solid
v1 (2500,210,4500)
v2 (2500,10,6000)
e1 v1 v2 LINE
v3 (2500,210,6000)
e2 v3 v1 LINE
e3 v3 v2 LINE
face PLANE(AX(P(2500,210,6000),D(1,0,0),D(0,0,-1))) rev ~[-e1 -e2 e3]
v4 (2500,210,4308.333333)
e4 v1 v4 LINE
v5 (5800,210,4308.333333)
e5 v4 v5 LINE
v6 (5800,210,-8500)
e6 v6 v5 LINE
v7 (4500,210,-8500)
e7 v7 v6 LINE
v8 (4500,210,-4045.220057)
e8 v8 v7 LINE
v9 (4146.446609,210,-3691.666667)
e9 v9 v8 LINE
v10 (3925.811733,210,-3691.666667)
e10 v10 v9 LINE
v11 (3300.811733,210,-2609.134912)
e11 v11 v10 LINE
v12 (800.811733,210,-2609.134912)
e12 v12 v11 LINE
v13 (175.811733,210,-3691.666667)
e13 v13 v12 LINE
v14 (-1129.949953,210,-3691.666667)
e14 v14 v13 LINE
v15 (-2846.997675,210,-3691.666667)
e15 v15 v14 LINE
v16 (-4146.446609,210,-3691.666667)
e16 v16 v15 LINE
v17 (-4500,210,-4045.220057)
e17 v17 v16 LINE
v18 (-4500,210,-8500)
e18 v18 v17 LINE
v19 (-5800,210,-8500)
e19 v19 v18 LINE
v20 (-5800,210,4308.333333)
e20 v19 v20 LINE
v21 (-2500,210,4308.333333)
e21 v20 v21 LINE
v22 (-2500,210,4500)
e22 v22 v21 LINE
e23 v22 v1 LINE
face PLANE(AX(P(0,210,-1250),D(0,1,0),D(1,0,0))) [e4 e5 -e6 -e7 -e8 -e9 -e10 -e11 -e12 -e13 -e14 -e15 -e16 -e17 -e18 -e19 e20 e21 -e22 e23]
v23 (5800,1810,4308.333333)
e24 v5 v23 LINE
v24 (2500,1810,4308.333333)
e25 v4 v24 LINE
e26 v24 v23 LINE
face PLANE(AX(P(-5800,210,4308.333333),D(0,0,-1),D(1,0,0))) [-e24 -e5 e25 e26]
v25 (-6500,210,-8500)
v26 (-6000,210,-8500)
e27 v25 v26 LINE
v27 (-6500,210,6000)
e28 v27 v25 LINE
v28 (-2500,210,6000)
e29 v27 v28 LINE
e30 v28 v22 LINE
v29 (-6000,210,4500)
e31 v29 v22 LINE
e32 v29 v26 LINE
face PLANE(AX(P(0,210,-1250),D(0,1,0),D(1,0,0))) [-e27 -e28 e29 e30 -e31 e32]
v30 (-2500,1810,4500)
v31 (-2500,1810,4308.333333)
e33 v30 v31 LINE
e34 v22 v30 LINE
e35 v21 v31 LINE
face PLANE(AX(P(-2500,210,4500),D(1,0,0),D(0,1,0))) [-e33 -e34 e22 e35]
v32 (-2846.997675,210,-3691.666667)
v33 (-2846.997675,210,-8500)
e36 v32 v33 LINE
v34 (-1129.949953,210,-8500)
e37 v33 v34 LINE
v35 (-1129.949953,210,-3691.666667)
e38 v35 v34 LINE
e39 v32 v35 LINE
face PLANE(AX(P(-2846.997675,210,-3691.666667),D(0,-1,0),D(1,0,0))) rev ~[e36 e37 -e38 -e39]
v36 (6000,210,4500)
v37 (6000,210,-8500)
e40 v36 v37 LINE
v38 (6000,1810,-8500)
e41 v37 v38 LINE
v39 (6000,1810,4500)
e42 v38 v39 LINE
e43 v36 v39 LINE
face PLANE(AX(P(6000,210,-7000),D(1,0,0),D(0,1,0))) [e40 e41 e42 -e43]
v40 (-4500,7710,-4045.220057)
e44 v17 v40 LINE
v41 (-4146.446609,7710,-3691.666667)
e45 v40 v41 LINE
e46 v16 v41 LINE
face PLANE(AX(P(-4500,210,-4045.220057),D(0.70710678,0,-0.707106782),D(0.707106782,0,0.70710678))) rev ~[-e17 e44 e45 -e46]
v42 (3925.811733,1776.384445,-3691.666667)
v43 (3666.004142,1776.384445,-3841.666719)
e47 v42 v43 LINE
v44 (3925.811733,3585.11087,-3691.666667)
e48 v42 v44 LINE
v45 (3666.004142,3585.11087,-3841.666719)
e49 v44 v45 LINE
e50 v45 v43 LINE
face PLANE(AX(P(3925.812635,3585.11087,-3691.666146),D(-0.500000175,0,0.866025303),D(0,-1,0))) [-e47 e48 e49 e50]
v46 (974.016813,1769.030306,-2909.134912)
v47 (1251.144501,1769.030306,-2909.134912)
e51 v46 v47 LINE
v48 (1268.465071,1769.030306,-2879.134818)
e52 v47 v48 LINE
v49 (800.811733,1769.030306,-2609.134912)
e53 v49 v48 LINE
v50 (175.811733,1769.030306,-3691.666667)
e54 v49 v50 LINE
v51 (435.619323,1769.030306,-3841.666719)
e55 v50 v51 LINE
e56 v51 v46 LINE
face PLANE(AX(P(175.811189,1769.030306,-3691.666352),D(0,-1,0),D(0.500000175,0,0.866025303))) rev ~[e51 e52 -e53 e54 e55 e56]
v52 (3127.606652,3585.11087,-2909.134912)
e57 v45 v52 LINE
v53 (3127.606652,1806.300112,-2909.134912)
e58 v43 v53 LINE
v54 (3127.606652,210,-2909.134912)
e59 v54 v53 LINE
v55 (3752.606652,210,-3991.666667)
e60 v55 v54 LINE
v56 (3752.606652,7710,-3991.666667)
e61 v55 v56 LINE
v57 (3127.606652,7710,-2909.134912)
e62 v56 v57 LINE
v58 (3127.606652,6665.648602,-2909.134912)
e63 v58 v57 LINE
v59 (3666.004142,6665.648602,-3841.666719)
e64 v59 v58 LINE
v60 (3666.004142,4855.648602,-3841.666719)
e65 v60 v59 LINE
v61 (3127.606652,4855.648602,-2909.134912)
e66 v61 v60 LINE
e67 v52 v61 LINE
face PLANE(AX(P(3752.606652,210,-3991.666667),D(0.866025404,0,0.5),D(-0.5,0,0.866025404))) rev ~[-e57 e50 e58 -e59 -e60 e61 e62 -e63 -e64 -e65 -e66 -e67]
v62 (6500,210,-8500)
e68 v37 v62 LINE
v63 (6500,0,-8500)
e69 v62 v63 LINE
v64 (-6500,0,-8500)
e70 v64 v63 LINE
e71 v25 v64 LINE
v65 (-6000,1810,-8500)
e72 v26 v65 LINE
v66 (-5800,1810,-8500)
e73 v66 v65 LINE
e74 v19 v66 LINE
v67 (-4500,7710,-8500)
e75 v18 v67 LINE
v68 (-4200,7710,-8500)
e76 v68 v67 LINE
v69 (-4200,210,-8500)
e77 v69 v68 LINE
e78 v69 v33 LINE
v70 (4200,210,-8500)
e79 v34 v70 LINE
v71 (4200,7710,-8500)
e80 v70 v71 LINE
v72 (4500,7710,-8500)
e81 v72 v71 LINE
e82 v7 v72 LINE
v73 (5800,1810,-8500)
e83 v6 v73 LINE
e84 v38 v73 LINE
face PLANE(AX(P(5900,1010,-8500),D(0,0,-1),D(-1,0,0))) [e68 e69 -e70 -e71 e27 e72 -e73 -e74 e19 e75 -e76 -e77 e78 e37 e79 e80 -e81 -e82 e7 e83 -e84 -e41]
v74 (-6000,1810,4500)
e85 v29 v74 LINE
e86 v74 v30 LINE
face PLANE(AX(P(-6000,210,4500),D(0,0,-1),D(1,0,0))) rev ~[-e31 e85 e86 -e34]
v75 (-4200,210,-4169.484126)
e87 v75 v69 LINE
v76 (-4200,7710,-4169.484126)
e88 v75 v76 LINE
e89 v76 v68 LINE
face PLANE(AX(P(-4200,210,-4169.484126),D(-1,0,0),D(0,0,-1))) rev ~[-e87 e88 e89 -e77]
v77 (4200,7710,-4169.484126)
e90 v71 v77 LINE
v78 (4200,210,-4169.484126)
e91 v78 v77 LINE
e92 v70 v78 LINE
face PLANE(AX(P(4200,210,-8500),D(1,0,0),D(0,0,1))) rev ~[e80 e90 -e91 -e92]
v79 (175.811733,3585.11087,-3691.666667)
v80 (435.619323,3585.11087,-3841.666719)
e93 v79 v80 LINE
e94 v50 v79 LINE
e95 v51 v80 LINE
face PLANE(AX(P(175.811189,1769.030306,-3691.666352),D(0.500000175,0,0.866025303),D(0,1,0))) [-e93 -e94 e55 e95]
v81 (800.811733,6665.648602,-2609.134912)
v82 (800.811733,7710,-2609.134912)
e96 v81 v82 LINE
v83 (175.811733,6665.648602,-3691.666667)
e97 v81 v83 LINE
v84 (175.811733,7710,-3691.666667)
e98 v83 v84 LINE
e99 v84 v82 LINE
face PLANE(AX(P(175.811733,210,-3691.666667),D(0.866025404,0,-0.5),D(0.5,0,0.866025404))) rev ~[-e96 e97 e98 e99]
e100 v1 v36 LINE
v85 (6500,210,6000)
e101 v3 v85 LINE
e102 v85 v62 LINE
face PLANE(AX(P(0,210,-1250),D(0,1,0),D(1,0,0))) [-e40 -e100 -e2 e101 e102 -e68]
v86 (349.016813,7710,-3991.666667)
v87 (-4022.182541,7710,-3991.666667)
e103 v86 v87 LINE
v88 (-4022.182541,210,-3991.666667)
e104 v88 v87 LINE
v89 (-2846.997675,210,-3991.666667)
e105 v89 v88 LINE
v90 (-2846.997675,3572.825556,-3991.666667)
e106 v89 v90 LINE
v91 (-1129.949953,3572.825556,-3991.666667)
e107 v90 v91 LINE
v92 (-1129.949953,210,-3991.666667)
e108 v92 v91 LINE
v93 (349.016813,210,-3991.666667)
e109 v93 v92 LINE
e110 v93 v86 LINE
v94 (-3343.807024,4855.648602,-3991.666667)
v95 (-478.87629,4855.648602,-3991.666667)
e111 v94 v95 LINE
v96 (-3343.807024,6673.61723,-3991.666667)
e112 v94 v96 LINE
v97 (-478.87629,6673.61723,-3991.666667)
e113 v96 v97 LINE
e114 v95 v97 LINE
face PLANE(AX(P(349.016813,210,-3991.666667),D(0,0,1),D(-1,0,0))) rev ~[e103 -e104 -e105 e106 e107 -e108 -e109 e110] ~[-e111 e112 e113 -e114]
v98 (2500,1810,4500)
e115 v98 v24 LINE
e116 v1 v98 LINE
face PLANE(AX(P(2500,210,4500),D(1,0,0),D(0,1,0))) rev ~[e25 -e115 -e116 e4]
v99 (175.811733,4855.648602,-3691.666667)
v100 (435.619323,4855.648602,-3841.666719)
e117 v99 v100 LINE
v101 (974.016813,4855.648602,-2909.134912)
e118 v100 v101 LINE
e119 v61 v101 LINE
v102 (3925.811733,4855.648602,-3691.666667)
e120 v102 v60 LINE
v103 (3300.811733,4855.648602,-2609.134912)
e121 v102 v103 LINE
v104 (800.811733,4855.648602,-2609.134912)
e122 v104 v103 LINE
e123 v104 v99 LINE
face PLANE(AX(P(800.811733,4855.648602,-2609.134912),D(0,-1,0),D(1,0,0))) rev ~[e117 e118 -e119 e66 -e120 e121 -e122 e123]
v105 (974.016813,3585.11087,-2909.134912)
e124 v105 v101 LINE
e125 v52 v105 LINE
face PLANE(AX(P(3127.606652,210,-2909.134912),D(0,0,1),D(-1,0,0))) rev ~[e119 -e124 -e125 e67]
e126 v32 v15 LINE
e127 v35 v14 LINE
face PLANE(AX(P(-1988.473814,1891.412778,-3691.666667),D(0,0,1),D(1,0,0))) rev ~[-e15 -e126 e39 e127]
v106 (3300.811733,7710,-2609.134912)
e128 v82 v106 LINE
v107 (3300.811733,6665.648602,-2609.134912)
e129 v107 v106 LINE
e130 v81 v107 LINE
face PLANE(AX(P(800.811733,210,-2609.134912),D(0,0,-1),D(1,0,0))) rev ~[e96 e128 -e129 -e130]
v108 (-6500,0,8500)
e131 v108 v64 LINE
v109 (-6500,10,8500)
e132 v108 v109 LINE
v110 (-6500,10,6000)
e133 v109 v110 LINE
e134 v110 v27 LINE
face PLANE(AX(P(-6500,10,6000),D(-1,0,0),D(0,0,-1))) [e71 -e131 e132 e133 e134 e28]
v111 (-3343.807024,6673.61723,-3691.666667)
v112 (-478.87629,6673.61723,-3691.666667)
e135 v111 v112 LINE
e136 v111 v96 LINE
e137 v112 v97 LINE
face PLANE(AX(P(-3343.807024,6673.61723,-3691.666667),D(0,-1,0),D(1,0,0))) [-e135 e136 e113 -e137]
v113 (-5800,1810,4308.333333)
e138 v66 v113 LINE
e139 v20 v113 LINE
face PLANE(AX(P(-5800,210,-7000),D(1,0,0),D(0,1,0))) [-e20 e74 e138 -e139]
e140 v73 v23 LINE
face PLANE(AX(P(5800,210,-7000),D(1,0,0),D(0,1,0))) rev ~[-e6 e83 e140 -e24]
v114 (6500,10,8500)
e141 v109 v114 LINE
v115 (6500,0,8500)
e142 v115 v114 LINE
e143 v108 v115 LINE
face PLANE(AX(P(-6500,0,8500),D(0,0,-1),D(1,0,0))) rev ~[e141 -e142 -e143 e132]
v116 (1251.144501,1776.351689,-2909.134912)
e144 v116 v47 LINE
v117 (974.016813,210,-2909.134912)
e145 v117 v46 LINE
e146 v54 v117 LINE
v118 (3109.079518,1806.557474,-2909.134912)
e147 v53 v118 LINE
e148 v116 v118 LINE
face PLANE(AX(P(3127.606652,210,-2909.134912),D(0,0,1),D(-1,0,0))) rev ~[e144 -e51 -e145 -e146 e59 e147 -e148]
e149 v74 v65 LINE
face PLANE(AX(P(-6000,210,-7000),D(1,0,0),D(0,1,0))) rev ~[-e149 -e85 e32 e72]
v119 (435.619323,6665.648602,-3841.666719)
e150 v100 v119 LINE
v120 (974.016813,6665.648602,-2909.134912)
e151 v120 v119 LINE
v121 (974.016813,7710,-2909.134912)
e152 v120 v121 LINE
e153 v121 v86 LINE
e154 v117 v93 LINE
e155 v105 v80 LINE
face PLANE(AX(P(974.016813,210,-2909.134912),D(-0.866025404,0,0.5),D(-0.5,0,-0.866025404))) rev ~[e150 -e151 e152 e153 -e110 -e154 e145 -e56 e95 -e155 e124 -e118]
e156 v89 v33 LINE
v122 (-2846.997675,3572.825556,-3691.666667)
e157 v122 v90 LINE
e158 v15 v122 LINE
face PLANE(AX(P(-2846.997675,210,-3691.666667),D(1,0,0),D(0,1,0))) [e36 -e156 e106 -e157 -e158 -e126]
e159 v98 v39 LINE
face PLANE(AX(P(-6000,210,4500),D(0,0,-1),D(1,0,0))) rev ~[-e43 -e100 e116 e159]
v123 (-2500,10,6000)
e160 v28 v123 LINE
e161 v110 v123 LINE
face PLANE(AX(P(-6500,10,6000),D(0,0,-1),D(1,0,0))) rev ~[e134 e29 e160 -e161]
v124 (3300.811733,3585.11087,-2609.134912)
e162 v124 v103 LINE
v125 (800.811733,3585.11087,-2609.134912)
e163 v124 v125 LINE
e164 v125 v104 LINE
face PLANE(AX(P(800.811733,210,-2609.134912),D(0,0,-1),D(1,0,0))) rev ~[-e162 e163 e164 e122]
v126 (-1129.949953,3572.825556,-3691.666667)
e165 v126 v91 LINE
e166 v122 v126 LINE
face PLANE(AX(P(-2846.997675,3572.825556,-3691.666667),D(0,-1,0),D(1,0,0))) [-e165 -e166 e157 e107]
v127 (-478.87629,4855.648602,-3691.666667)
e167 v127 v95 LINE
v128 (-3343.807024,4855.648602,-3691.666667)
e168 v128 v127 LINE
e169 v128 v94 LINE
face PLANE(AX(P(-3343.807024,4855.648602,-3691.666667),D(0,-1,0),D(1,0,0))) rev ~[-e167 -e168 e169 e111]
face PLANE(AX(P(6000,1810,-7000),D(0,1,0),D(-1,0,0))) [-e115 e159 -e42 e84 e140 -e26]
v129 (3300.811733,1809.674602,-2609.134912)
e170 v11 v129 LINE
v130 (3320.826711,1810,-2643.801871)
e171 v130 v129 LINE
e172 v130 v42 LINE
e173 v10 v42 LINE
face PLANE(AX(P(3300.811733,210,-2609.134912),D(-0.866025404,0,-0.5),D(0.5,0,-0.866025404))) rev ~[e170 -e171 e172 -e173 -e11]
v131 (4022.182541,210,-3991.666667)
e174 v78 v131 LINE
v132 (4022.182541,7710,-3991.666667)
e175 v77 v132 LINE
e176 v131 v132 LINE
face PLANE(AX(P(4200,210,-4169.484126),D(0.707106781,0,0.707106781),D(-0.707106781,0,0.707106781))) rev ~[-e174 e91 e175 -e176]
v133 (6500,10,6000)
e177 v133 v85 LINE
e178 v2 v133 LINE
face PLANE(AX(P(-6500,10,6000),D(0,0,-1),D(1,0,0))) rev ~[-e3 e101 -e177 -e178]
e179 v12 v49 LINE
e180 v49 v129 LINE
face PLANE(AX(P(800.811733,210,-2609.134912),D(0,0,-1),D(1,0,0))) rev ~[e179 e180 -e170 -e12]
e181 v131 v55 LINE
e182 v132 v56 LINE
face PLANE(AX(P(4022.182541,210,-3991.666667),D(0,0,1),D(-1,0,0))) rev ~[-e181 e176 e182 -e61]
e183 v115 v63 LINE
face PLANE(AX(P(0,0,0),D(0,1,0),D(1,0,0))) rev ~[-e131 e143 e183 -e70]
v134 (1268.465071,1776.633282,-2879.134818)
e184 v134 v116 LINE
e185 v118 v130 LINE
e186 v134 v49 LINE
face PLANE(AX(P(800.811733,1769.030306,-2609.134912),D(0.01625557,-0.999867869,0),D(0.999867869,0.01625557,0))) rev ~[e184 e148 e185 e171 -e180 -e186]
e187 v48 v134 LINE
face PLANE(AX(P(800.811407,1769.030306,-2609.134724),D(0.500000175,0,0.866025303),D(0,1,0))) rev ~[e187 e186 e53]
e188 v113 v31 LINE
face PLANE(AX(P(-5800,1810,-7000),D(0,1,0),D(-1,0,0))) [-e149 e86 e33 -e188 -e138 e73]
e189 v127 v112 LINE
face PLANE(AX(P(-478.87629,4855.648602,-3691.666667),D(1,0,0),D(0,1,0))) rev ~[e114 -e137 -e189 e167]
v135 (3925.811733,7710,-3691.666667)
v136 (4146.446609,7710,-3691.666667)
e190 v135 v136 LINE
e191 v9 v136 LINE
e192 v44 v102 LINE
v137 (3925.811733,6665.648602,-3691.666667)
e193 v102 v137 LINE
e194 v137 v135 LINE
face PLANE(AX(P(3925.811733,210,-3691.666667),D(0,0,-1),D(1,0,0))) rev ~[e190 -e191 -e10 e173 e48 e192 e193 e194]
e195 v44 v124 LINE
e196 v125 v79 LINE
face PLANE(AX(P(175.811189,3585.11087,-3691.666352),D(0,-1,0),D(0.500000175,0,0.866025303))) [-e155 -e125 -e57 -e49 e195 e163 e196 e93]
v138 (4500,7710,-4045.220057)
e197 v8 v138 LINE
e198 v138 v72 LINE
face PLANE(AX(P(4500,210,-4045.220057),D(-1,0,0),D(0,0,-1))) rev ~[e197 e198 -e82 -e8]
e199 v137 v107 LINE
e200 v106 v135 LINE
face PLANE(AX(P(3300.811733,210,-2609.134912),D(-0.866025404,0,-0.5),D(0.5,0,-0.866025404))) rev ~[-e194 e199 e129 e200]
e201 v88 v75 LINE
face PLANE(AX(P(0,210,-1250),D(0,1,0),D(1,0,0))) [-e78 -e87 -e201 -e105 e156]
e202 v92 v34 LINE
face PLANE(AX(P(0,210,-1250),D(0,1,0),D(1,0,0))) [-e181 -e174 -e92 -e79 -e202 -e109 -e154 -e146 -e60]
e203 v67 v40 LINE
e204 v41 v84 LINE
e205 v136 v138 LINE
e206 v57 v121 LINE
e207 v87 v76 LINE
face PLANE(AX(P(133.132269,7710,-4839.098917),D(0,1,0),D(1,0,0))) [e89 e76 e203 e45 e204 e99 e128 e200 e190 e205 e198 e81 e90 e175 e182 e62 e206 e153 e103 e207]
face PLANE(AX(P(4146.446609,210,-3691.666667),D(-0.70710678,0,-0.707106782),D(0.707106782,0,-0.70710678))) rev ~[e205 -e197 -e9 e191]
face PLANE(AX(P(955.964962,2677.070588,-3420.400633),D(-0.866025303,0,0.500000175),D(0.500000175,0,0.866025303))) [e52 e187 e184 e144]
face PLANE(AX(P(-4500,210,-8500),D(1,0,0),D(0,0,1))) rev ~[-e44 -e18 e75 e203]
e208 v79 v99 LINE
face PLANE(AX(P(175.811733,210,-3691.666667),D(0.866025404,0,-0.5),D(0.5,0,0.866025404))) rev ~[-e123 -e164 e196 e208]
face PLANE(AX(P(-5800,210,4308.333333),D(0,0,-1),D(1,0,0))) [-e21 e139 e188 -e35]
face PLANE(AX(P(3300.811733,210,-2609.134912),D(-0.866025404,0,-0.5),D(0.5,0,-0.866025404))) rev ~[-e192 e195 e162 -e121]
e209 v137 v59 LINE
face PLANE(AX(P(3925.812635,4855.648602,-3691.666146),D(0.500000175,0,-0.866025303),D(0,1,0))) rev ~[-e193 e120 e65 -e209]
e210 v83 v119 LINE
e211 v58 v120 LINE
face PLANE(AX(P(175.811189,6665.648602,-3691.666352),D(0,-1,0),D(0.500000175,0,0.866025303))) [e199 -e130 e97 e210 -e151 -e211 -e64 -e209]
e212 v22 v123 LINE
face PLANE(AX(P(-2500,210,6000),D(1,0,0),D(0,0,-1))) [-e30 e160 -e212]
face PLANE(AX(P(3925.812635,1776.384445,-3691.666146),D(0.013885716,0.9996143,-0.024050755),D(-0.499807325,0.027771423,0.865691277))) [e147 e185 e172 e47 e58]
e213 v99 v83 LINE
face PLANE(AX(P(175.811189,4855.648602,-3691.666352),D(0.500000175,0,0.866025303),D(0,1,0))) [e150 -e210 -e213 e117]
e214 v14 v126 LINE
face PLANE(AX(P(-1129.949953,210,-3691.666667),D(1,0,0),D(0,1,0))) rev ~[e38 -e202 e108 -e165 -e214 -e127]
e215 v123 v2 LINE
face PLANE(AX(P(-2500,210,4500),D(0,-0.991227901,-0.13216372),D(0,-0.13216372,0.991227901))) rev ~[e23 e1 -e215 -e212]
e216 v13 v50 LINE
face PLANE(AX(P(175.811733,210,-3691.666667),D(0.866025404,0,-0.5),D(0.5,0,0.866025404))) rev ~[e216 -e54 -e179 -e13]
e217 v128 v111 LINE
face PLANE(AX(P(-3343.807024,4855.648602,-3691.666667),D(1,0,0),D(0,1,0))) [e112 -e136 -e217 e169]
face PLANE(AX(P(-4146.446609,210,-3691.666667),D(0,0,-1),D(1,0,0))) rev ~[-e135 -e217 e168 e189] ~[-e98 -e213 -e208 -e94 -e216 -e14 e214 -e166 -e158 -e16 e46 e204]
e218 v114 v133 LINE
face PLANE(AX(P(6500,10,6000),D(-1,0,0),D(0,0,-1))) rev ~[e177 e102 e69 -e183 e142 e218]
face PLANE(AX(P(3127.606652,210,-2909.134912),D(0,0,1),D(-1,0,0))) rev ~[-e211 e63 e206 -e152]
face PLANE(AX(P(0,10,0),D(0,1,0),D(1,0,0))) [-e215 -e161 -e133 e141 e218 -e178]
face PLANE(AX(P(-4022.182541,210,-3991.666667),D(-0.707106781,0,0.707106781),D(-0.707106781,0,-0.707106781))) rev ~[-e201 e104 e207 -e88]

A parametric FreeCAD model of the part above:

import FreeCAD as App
import Part
import Sketcher
from FreeCAD import Vector
Q = App.Units.Quantity

doc = App.newDocument("Part")
body = doc.addObject("PartDesign::Body", "Body")

# Sketch on XZ plane
sketch1 = body.newObject("Sketcher::SketchObject", "Sketch")
sketch1.AttachmentSupport = (doc.getObject("XZ_Plane"), [""])
sketch1.MapMode = "FlatFace"
sketch1.addGeometry([
    Part.LineSegment(Vector(-6500, -8500, 0), Vector(-6500, 8500, 0)),
    Part.LineSegment(Vector(-6500, 8500, 0), Vector(6500, 8500, 0)),
    Part.LineSegment(Vector(6500, 8500, 0), Vector(6500, -8500, 0)),
    Part.LineSegment(Vector(6500, -8500, 0), Vector(-6500, -8500, 0)),
], False)
sketch1.addConstraint([
    Sketcher.Constraint("Coincident", 0, 2, 1, 1),
    Sketcher.Constraint("Coincident", 1, 2, 2, 1),
    Sketcher.Constraint("Coincident", 2, 2, 3, 1),
    Sketcher.Constraint("Coincident", 3, 2, 0, 1),
    Sketcher.Constraint("Vertical", 0),
    Sketcher.Constraint("Horizontal", 1),
    Sketcher.Constraint("Vertical", 2),
    Sketcher.Constraint("Horizontal", 3),
    Sketcher.Constraint("Symmetric", 0, 2, 2, 2, -1, 1),
    Sketcher.Constraint("DistanceX", 1, 1, 1, 2, Q("13000 mm")),
    Sketcher.Constraint("DistanceY", 0, 1, 0, 2, Q("17000 mm")),
])
pad1 = body.newObject("PartDesign::Pad", "Pad")
pad1.Profile = sketch1
pad1.Length = 10
pad1.Reversed = True

# Sketch on XZ plane
sketch2 = body.newObject("Sketcher::SketchObject", "Sketch001")
sketch2.AttachmentSupport = (doc.getObject("XZ_Plane"), [""])
sketch2.MapMode = "FlatFace"
sketch2.AttachmentOffset = App.Placement(Vector(0, 0, -10), App.Rotation())
sketch2.addGeometry([
    Part.LineSegment(Vector(-6500, -8500, 0), Vector(-6500, 6000, 0)),
    Part.LineSegment(Vector(-6500, 6000, 0), Vector(6500, 6000, 0)),
    Part.LineSegment(Vector(6500, 6000, 0), Vector(6500, -8500, 0)),
    Part.LineSegment(Vector(6500, -8500, 0), Vector(-6500, -8500, 0)),
], False)
sketch2.addConstraint([
    Sketcher.Constraint("Coincident", 0, 2, 1, 1),
    Sketcher.Constraint("Coincident", 1, 2, 2, 1),
    Sketcher.Constraint("Coincident", 2, 2, 3, 1),
    Sketcher.Constraint("Coincident", 3, 2, 0, 1),
    Sketcher.Constraint("Vertical", 0),
    Sketcher.Constraint("Horizontal", 1),
    Sketcher.Constraint("Vertical", 2),
    Sketcher.Constraint("Horizontal", 3),
    Sketcher.Constraint("DistanceX", 1, 1, 1, 2, Q("13000 mm")),
    Sketcher.Constraint("DistanceY", 0, 1, 0, 2, Q("14500 mm")),
    Sketcher.Constraint("DistanceX", 0, 2, -1, 1, Q("6500 mm")),
    Sketcher.Constraint("DistanceY", -1, 1, 0, 2, Q("6000 mm")),
])
pad2 = body.newObject("PartDesign::Pad", "Pad001")
pad2.Profile = sketch2
pad2.Length = 200
pad2.Reversed = True

# Sketch on XZ plane
sketch3 = body.newObject("Sketcher::SketchObject", "Sketch002")
sketch3.AttachmentSupport = (doc.getObject("XZ_Plane"), [""])
sketch3.MapMode = "FlatFace"
sketch3.AttachmentOffset = App.Placement(Vector(0, 0, -210), App.Rotation())
sketch3.addGeometry([
    Part.LineSegment(Vector(-6000, -7000, 0), Vector(-6000, 4500, 0)),  # 0
    Part.LineSegment(Vector(-6000, 4500, 0), Vector(6000, 4500, 0)),  # 1
    Part.LineSegment(Vector(6000, 4500, 0), Vector(6000, -7000, 0)),  # 2
    Part.LineSegment(Vector(6000, -7000, 0), Vector(-6000, -7000, 0)),  # 3
    Part.LineSegment(Vector(5800, 4308.333333, 0), Vector(-5800, 4308.333333, 0)),  # 4
    Part.LineSegment(Vector(-5800, 4308.333333, 0), Vector(-5800, -6808.333333, 0)),  # 5
    Part.LineSegment(Vector(-5800, -6808.333333, 0), Vector(5800, -6808.333333, 0)),  # 6
    Part.LineSegment(Vector(5800, -6808.333333, 0), Vector(5800, 4308.333333, 0)),  # 7
], False)
sketch3.addConstraint([
    Sketcher.Constraint("Coincident", 0, 2, 1, 1),
    Sketcher.Constraint("Coincident", 1, 2, 2, 1),
    Sketcher.Constraint("Coincident", 2, 2, 3, 1),
    Sketcher.Constraint("Coincident", 3, 2, 0, 1),
    Sketcher.Constraint("Coincident", 4, 2, 5, 1),
    Sketcher.Constraint("Coincident", 5, 2, 6, 1),
    Sketcher.Constraint("Coincident", 6, 2, 7, 1),
    Sketcher.Constraint("Coincident", 7, 2, 4, 1),
    Sketcher.Constraint("Vertical", 0),
    Sketcher.Constraint("Horizontal", 1),
    Sketcher.Constraint("Vertical", 2),
    Sketcher.Constraint("Horizontal", 3),
    Sketcher.Constraint("Horizontal", 4),
    Sketcher.Constraint("Vertical", 5),
    Sketcher.Constraint("Horizontal", 6),
    Sketcher.Constraint("Vertical", 7),
    Sketcher.Constraint("DistanceX", 1, 1, 1, 2, Q("12000 mm")),
    Sketcher.Constraint("DistanceX", 4, 2, 4, 1, Q("11600 mm")),
    Sketcher.Constraint("DistanceY", 0, 1, 0, 2, Q("11500 mm")),
    Sketcher.Constraint("DistanceX", 0, 2, -1, 1, Q("6000 mm")),
    Sketcher.Constraint("DistanceY", -1, 1, 0, 2, Q("4500 mm")),
    Sketcher.Constraint("DistanceX", 4, 2, -1, 1, Q("5800 mm")),
    Sketcher.Constraint("DistanceY", 5, 2, 5, 1, Q("11116.666666 mm")),
    Sketcher.Constraint("DistanceY", -1, 1, 4, 2, Q("4308.333333 mm")),
])
pad3 = body.newObject("PartDesign::Pad", "Pad002")
pad3.Profile = sketch3
pad3.Length = 1600
pad3.Reversed = True

# Sketch on XY plane
sketch4 = body.newObject("Sketcher::SketchObject", "Sketch003")
sketch4.AttachmentSupport = (doc.getObject("XY_Plane"), [""])
sketch4.MapMode = "FlatFace"
sketch4.AttachmentOffset = App.Placement(Vector(0, 0, 4500), App.Rotation())
sketch4.addGeometry([
    Part.LineSegment(Vector(-2500, 1810, 0), Vector(-2500, 210, 0)),
    Part.LineSegment(Vector(-2500, 210, 0), Vector(2500, 210, 0)),
    Part.LineSegment(Vector(2500, 210, 0), Vector(2500, 1810, 0)),
    Part.LineSegment(Vector(2500, 1810, 0), Vector(-2500, 1810, 0)),
], False)
sketch4.addConstraint([
    Sketcher.Constraint("Coincident", 0, 2, 1, 1),
    Sketcher.Constraint("Coincident", 1, 2, 2, 1),
    Sketcher.Constraint("Coincident", 2, 2, 3, 1),
    Sketcher.Constraint("Coincident", 3, 2, 0, 1),
    Sketcher.Constraint("Vertical", 0),
    Sketcher.Constraint("Horizontal", 1),
    Sketcher.Constraint("Vertical", 2),
    Sketcher.Constraint("Horizontal", 3),
    Sketcher.Constraint("DistanceX", 1, 1, 1, 2, Q("5000 mm")),
    Sketcher.Constraint("DistanceY", 0, 2, 0, 1, Q("1600 mm")),
    Sketcher.Constraint("DistanceX", 0, 2, -1, 1, Q("2500 mm")),
    Sketcher.Constraint("DistanceY", -1, 1, 0, 2, Q("210 mm")),
])
pocket1 = body.newObject("PartDesign::Pocket", "Pocket")
pocket1.Profile = sketch4
pocket1.Length = 191.666667

# Sketch on XY plane
sketch5 = body.newObject("Sketcher::SketchObject", "Sketch004")
sketch5.AttachmentSupport = (doc.getObject("XY_Plane"), [""])
sketch5.MapMode = "FlatFace"
sketch5.AttachmentOffset = App.Placement(Vector(0, 0, -6808.333333), App.Rotation())
sketch5.addGeometry([
    Part.LineSegment(Vector(-5800, 1810, 0), Vector(-5800, 210, 0)),
    Part.LineSegment(Vector(-5800, 210, 0), Vector(5800, 210, 0)),
    Part.LineSegment(Vector(5800, 210, 0), Vector(5800, 1810, 0)),
    Part.LineSegment(Vector(5800, 1810, 0), Vector(-5800, 1810, 0)),
], False)
sketch5.addConstraint([
    Sketcher.Constraint("Coincident", 0, 2, 1, 1),
    Sketcher.Constraint("Coincident", 1, 2, 2, 1),
    Sketcher.Constraint("Coincident", 2, 2, 3, 1),
    Sketcher.Constraint("Coincident", 3, 2, 0, 1),
    Sketcher.Constraint("Vertical", 0),
    Sketcher.Constraint("Horizontal", 1),
    Sketcher.Constraint("Vertical", 2),
    Sketcher.Constraint("Horizontal", 3),
    Sketcher.Constraint("DistanceX", 1, 1, 1, 2, Q("11600 mm")),
    Sketcher.Constraint("DistanceY", 0, 2, 0, 1, Q("1600 mm")),
    Sketcher.Constraint("DistanceX", 0, 2, -1, 1, Q("5800 mm")),
    Sketcher.Constraint("DistanceY", -1, 1, 0, 2, Q("210 mm")),
])
pocket2 = body.newObject("PartDesign::Pocket", "Pocket001")
pocket2.Profile = sketch5
pocket2.Length = 191.666667

# Sketch on XZ plane
sketch6 = body.newObject("Sketcher::SketchObject", "Sketch005")
sketch6.AttachmentSupport = (doc.getObject("XZ_Plane"), [""])
sketch6.MapMode = "FlatFace"
sketch6.AttachmentOffset = App.Placement(Vector(0, 0, -210), App.Rotation())
sketch6.addGeometry([
    Part.LineSegment(Vector(-2500, 4500, 0), Vector(-2500, 6000, 0)),
    Part.LineSegment(Vector(-2500, 6000, 0), Vector(2500, 6000, 0)),
    Part.LineSegment(Vector(2500, 6000, 0), Vector(2500, 4500, 0)),
    Part.LineSegment(Vector(2500, 4500, 0), Vector(-2500, 4500, 0)),
], False)
sketch6.addConstraint([
    Sketcher.Constraint("Coincident", 0, 2, 1, 1),
    Sketcher.Constraint("Coincident", 1, 2, 2, 1),
    Sketcher.Constraint("Coincident", 2, 2, 3, 1),
    Sketcher.Constraint("Coincident", 3, 2, 0, 1),
    Sketcher.Constraint("Vertical", 0),
    Sketcher.Constraint("Horizontal", 1),
    Sketcher.Constraint("Vertical", 2),
    Sketcher.Constraint("Horizontal", 3),
    Sketcher.Constraint("DistanceX", 1, 1, 1, 2, Q("5000 mm")),
    Sketcher.Constraint("DistanceY", 0, 1, 0, 2, Q("1500 mm")),
    Sketcher.Constraint("DistanceX", 0, 2, -1, 1, Q("2500 mm")),
    Sketcher.Constraint("DistanceY", -1, 1, 0, 2, Q("6000 mm")),
])
pocket3 = body.newObject("PartDesign::Pocket", "Pocket002")
pocket3.Profile = sketch6
pocket3.Length = 200
pocket3.Reversed = True

# Sketch on YZ plane
sketch7 = body.newObject("Sketcher::SketchObject", "Sketch006")
sketch7.AttachmentSupport = (doc.getObject("YZ_Plane"), [""])
sketch7.MapMode = "FlatFace"
sketch7.AttachmentOffset = App.Placement(Vector(0, 0, -2500), App.Rotation())
sketch7.addGeometry([
    Part.LineSegment(Vector(10, 6000, 0), Vector(10, 4500, 0)),
    Part.LineSegment(Vector(10, 4500, 0), Vector(210, 4500, 0)),
    Part.LineSegment(Vector(210, 4500, 0), Vector(10, 6000, 0)),
], False)
sketch7.addConstraint([
    Sketcher.Constraint("Coincident", 0, 2, 1, 1),
    Sketcher.Constraint("Coincident", 1, 2, 2, 1),
    Sketcher.Constraint("Coincident", 2, 2, 0, 1),
    Sketcher.Constraint("Vertical", 0),
    Sketcher.Constraint("Horizontal", 1),
    Sketcher.Constraint("DistanceX", 1, 1, 1, 2, Q("200 mm")),
    Sketcher.Constraint("DistanceY", 0, 2, 0, 1, Q("1500 mm")),
    Sketcher.Constraint("DistanceX", -1, 1, 0, 2, Q("10 mm")),
    Sketcher.Constraint("DistanceY", -1, 1, 0, 2, Q("4500 mm")),
])
pad4 = body.newObject("PartDesign::Pad", "Pad003")
pad4.Profile = sketch7
pad4.Length = 5000

# Sketch on XZ plane
sketch8 = body.newObject("Sketcher::SketchObject", "Sketch007")
sketch8.AttachmentSupport = (doc.getObject("XZ_Plane"), [""])
sketch8.MapMode = "FlatFace"
sketch8.AttachmentOffset = App.Placement(Vector(0, 0, -210), App.Rotation())
sketch8.addGeometry([
    Part.LineSegment(Vector(-4146.446609, -3691.666667, 0), Vector(175.811733, -3691.666667, 0)),  # 0
    Part.LineSegment(Vector(175.811733, -3691.666667, 0), Vector(800.811733, -2609.134912, 0)),  # 1
    Part.LineSegment(Vector(800.811733, -2609.134912, 0), Vector(3300.811733, -2609.134912, 0)),  # 2
    Part.LineSegment(Vector(3300.811733, -2609.134912, 0), Vector(3925.811733, -3691.666667, 0)),  # 3
    Part.LineSegment(Vector(3925.811733, -3691.666667, 0), Vector(4146.446609, -3691.666667, 0)),  # 4
    Part.LineSegment(Vector(4146.446609, -3691.666667, 0), Vector(4500, -4045.220057, 0)),  # 5
    Part.LineSegment(Vector(4500, -4045.220057, 0), Vector(4500, -8500, 0)),  # 6
    Part.LineSegment(Vector(4500, -8500, 0), Vector(4200, -8500, 0)),  # 7
    Part.LineSegment(Vector(4200, -8500, 0), Vector(4200, -4169.484126, 0)),  # 8
    Part.LineSegment(Vector(4200, -4169.484126, 0), Vector(4022.182541, -3991.666667, 0)),  # 9
    Part.LineSegment(Vector(4022.182541, -3991.666667, 0), Vector(3752.606652, -3991.666667, 0)),  # 10
    Part.LineSegment(Vector(3752.606652, -3991.666667, 0), Vector(3127.606652, -2909.134912, 0)),  # 11
    Part.LineSegment(Vector(3127.606652, -2909.134912, 0), Vector(974.016813, -2909.134912, 0)),  # 12
    Part.LineSegment(Vector(974.016813, -2909.134912, 0), Vector(349.016813, -3991.666667, 0)),  # 13
    Part.LineSegment(Vector(349.016813, -3991.666667, 0), Vector(-4022.182541, -3991.666667, 0)),  # 14
    Part.LineSegment(Vector(-4022.182541, -3991.666667, 0), Vector(-4200, -4169.484126, 0)),  # 15
    Part.LineSegment(Vector(-4200, -4169.484126, 0), Vector(-4200, -8500, 0)),  # 16
    Part.LineSegment(Vector(-4200, -8500, 0), Vector(-4500, -8500, 0)),  # 17
    Part.LineSegment(Vector(-4500, -8500, 0), Vector(-4500, -4045.220057, 0)),  # 18
    Part.LineSegment(Vector(-4500, -4045.220057, 0), Vector(-4146.446609, -3691.666667, 0)),  # 19
], False)
sketch8.addConstraint([
    Sketcher.Constraint("Coincident", 0, 2, 1, 1),
    Sketcher.Constraint("Coincident", 1, 2, 2, 1),
    Sketcher.Constraint("Coincident", 2, 2, 3, 1),
    Sketcher.Constraint("Coincident", 3, 2, 4, 1),
    Sketcher.Constraint("Coincident", 4, 2, 5, 1),
    Sketcher.Constraint("Coincident", 5, 2, 6, 1),
    Sketcher.Constraint("Coincident", 6, 2, 7, 1),
    Sketcher.Constraint("Coincident", 7, 2, 8, 1),
    Sketcher.Constraint("Coincident", 8, 2, 9, 1),
    Sketcher.Constraint("Coincident", 9, 2, 10, 1),
    Sketcher.Constraint("Coincident", 10, 2, 11, 1),
    Sketcher.Constraint("Coincident", 11, 2, 12, 1),
    Sketcher.Constraint("Coincident", 12, 2, 13, 1),
    Sketcher.Constraint("Coincident", 13, 2, 14, 1),
    Sketcher.Constraint("Coincident", 14, 2, 15, 1),
    Sketcher.Constraint("Coincident", 15, 2, 16, 1),
    Sketcher.Constraint("Coincident", 16, 2, 17, 1),
    Sketcher.Constraint("Coincident", 17, 2, 18, 1),
    Sketcher.Constraint("Coincident", 18, 2, 19, 1),
    Sketcher.Constraint("Coincident", 19, 2, 0, 1),
    Sketcher.Constraint("Horizontal", 0),
    Sketcher.Constraint("Horizontal", 2),
    Sketcher.Constraint("Horizontal", 4),
    Sketcher.Constraint("Vertical", 6),
    Sketcher.Constraint("Horizontal", 7),
    Sketcher.Constraint("Vertical", 8),
    Sketcher.Constraint("Horizontal", 10),
    Sketcher.Constraint("Horizontal", 12),
    Sketcher.Constraint("Horizontal", 14),
    Sketcher.Constraint("Vertical", 16),
    Sketcher.Constraint("Horizontal", 17),
    Sketcher.Constraint("Vertical", 18),
    Sketcher.Constraint("Symmetric", 9, 2, 14, 2, -2),
    Sketcher.Constraint("Symmetric", 8, 2, 15, 2, -2),
    Sketcher.Constraint("Symmetric", 6, 2, 17, 2, -2),
    Sketcher.Constraint("Symmetric", 4, 2, 19, 2, -2),
    Sketcher.Constraint("Parallel", 5, 9),
    Sketcher.Constraint("Parallel", 3, 11),
    Sketcher.Constraint("Parallel", 1, 13),
    Sketcher.Constraint("Perpendicular", 9, 15),
    Sketcher.Constraint("Parallel", 15, 19),
    Sketcher.Constraint("Equal", 1, 3),
    Sketcher.Constraint("Equal", 3, 11),
    Sketcher.Constraint("DistanceX", 2, 1, 2, 2, Q("2500 mm")),
    Sketcher.Constraint("DistanceX", 7, 2, 7, 1, Q("300 mm")),
    Sketcher.Constraint("Angle", 1, Q("60 deg")),
    Sketcher.Constraint("Distance", 1, Q("1250 mm")),
    Sketcher.Constraint("Distance", 5, Q("500 mm")),
    Sketcher.Constraint("DistanceX", -1, 1, 5, 2, Q("4500 mm")),
    Sketcher.Constraint("DistanceY", 6, 2, -1, 1, Q("8500 mm")),
    Sketcher.Constraint("DistanceY", 9, 2, 3, 2, Q("300 mm")),
    Sketcher.Constraint("DistanceX", 0, 1, 0, 2, Q("4322.258342 mm")),
    Sketcher.Constraint("DistanceX", 10, 2, 10, 1, Q("269.575889 mm")),
    Sketcher.Constraint("DistanceX", 12, 2, 12, 1, Q("2153.589839 mm")),
    Sketcher.Constraint("DistanceX", 14, 2, 14, 1, Q("4371.199354 mm")),
    Sketcher.Constraint("DistanceY", 6, 2, 6, 1, Q("4454.779943 mm")),
])
pad5 = body.newObject("PartDesign::Pad", "Pad004")
pad5.Profile = sketch8
pad5.Length = 7500
pad5.Reversed = True

# Sketch on XY plane
sketch9 = body.newObject("Sketcher::SketchObject", "Sketch008")
sketch9.AttachmentSupport = (doc.getObject("XY_Plane"), [""])
sketch9.MapMode = "FlatFace"
sketch9.AttachmentOffset = App.Placement(Vector(0, 0, -7000), App.Rotation())
sketch9.addGeometry([
    Part.LineSegment(Vector(6000, 1810, 0), Vector(6000, 210, 0)),  # 0
    Part.LineSegment(Vector(6000, 210, 0), Vector(5800, 210, 0)),  # 1
    Part.LineSegment(Vector(5800, 210, 0), Vector(5800, 1810, 0)),  # 2
    Part.LineSegment(Vector(5800, 1810, 0), Vector(6000, 1810, 0)),  # 3
    Part.LineSegment(Vector(-5800, 1810, 0), Vector(-5800, 210, 0)),  # 4
    Part.LineSegment(Vector(-5800, 210, 0), Vector(-6000, 210, 0)),  # 5
    Part.LineSegment(Vector(-6000, 210, 0), Vector(-6000, 1810, 0)),  # 6
    Part.LineSegment(Vector(-6000, 1810, 0), Vector(-5800, 1810, 0)),  # 7
], False)
sketch9.addConstraint([
    Sketcher.Constraint("Coincident", 0, 2, 1, 1),
    Sketcher.Constraint("Coincident", 1, 2, 2, 1),
    Sketcher.Constraint("Coincident", 2, 2, 3, 1),
    Sketcher.Constraint("Coincident", 3, 2, 0, 1),
    Sketcher.Constraint("Coincident", 4, 2, 5, 1),
    Sketcher.Constraint("Coincident", 5, 2, 6, 1),
    Sketcher.Constraint("Coincident", 6, 2, 7, 1),
    Sketcher.Constraint("Coincident", 7, 2, 4, 1),
    Sketcher.Constraint("Vertical", 0),
    Sketcher.Constraint("Horizontal", 1),
    Sketcher.Constraint("Vertical", 2),
    Sketcher.Constraint("Horizontal", 3),
    Sketcher.Constraint("Vertical", 4),
    Sketcher.Constraint("Horizontal", 5),
    Sketcher.Constraint("Vertical", 6),
    Sketcher.Constraint("Horizontal", 7),
    Sketcher.Constraint("Symmetric", 1, 2, 4, 2, -2),
    Sketcher.Constraint("Symmetric", 3, 2, 6, 2, -2),
    Sketcher.Constraint("DistanceX", 1, 2, 1, 1, Q("200 mm")),
    Sketcher.Constraint("DistanceY", 0, 2, 0, 1, Q("1600 mm")),
    Sketcher.Constraint("DistanceX", -1, 1, 0, 2, Q("6000 mm")),
    Sketcher.Constraint("DistanceY", -1, 1, 0, 2, Q("210 mm")),
])
pad6 = body.newObject("PartDesign::Pad", "Pad005")
pad6.Profile = sketch9
pad6.Length = 1500
pad6.Reversed = True

# Sketch on XY plane
sketch10 = body.newObject("Sketcher::SketchObject", "Sketch009")
sketch10.AttachmentSupport = (doc.getObject("XY_Plane"), [""])
sketch10.MapMode = "FlatFace"
sketch10.AttachmentOffset = App.Placement(Vector(0, 0, -3691.666667), App.Rotation())
sketch10.addGeometry([
    Part.LineSegment(Vector(-2846.997675, 3572.825556, 0), Vector(-2846.997675, 210, 0)),
    Part.LineSegment(Vector(-2846.997675, 210, 0), Vector(-1129.949953, 210, 0)),
    Part.LineSegment(Vector(-1129.949953, 210, 0), Vector(-1129.949953, 3572.825556, 0)),
    Part.LineSegment(Vector(-1129.949953, 3572.825556, 0), Vector(-2846.997675, 3572.825556, 0)),
], False)
sketch10.addConstraint([
    Sketcher.Constraint("Coincident", 0, 2, 1, 1),
    Sketcher.Constraint("Coincident", 1, 2, 2, 1),
    Sketcher.Constraint("Coincident", 2, 2, 3, 1),
    Sketcher.Constraint("Coincident", 3, 2, 0, 1),
    Sketcher.Constraint("Vertical", 0),
    Sketcher.Constraint("Horizontal", 1),
    Sketcher.Constraint("Vertical", 2),
    Sketcher.Constraint("Horizontal", 3),
    Sketcher.Constraint("DistanceY", -1, 1, 0, 2, Q("210 mm")),
    Sketcher.Constraint("DistanceX", 1, 1, 1, 2, Q("1717.047722 mm")),
    Sketcher.Constraint("DistanceY", 0, 2, 0, 1, Q("3362.825557 mm")),
    Sketcher.Constraint("DistanceX", 0, 2, -1, 1, Q("2846.997675 mm")),
])
pocket4 = body.newObject("PartDesign::Pocket", "Pocket003")
pocket4.Profile = sketch10
pocket4.Type = "ThroughAll"

# Sketch on XY plane
sketch11 = body.newObject("Sketcher::SketchObject", "Sketch010")
sketch11.AttachmentSupport = (doc.getObject("XY_Plane"), [""])
sketch11.MapMode = "FlatFace"
sketch11.AttachmentOffset = App.Placement(Vector(0, 0, -2609.134912), App.Rotation())
sketch11.addGeometry([
    Part.LineSegment(Vector(800.811733, 1769.030306, 0), Vector(3320.826711, 1810, 0)),
    Part.LineSegment(Vector(3320.826711, 1810, 0), Vector(3300.811733, 3585.11087, 0)),
    Part.LineSegment(Vector(3300.811733, 3585.11087, 0), Vector(800.811733, 3585.11087, 0)),
    Part.LineSegment(Vector(800.811733, 3585.11087, 0), Vector(800.811733, 1769.030306, 0)),
], False)
sketch11.addConstraint([
    Sketcher.Constraint("Coincident", 0, 2, 1, 1),
    Sketcher.Constraint("Coincident", 1, 2, 2, 1),
    Sketcher.Constraint("Coincident", 2, 2, 3, 1),
    Sketcher.Constraint("Coincident", 3, 2, 0, 1),
    Sketcher.Constraint("Horizontal", 2),
    Sketcher.Constraint("Vertical", 3),
    Sketcher.Constraint("DistanceX", 2, 2, 2, 1, Q("2500 mm")),
    Sketcher.Constraint("DistanceY", -1, 1, 0, 2, Q("1810 mm")),
    Sketcher.Constraint("DistanceY", 3, 2, 3, 1, Q("1816.080564 mm")),
    Sketcher.Constraint("DistanceX", -1, 1, 0, 2, Q("3320.826711 mm")),
    Sketcher.Constraint("DistanceY", -1, 1, 1, 2, Q("3585.11087 mm")),
    Sketcher.Constraint("DistanceX", 1, 2, 0, 2, Q("20.014978 mm")),
])
pocket5 = body.newObject("PartDesign::Pocket", "Pocket004")
pocket5.Profile = sketch11
pocket5.Type = "ThroughAll"

# Sketch on an angled plane
sketch12 = body.newObject("Sketcher::SketchObject", "Sketch011")
sketch12.Placement = App.Placement(Vector(1345.820242, 0, 777.009679), App.Rotation(Vector(0.500000175, 0, -0.866025303), Vector(0, 1, 0), Vector(0.866025303, 0, 0.500000175), "ZXY"))
sketch12.addGeometry([
    Part.LineSegment(Vector(5159.982984, 3585.110873, 0), Vector(3909.982984, 3585.110873, 0)),
    Part.LineSegment(Vector(3909.982984, 3585.110873, 0), Vector(3950.01294, 1810.000002, 0)),
    Part.LineSegment(Vector(3950.01294, 1810.000002, 0), Vector(5159.982984, 1776.384447, 0)),
    Part.LineSegment(Vector(5159.982984, 1776.384447, 0), Vector(5159.982984, 3585.110873, 0)),
], False)
sketch12.addConstraint([
    Sketcher.Constraint("Coincident", 0, 2, 1, 1),
    Sketcher.Constraint("Coincident", 1, 2, 2, 1),
    Sketcher.Constraint("Coincident", 2, 2, 3, 1),
    Sketcher.Constraint("Coincident", 3, 2, 0, 1),
    Sketcher.Constraint("Horizontal", 0),
    Sketcher.Constraint("Vertical", 3),
    Sketcher.Constraint("DistanceX", 0, 2, 0, 1, Q("1250.000001 mm")),
    Sketcher.Constraint("DistanceY", -1, 1, 1, 2, Q("1810.000002 mm")),
    Sketcher.Constraint("Distance", 2, Q("1210.43691 mm")),
    Sketcher.Constraint("DistanceY", 3, 1, 3, 2, Q("1808.726427 mm")),
    Sketcher.Constraint("DistanceX", -1, 1, 1, 2, Q("3950.01294 mm")),
    Sketcher.Constraint("DistanceY", 1, 2, 0, 2, Q("1775.110872 mm")),
])
pocket6 = body.newObject("PartDesign::Pocket", "Pocket005")
pocket6.Profile = sketch12
pocket6.Length = 1380
pocket6.Midplane = True

# Sketch on an angled plane
sketch13 = body.newObject("Sketcher::SketchObject", "Sketch012")
sketch13.Placement = App.Placement(Vector(1730.397357, 0, -999.04538), App.Rotation(Vector(0.500000175, 0, 0.866025303), Vector(0, 1, 0), Vector(-0.866025303, 0, 0.500000175), "ZXY"))
sketch13.addGeometry([
    Part.LineSegment(Vector(-3109.17125, 3585.110873, 0), Vector(-3109.17125, 1769.030308, 0)),
    Part.LineSegment(Vector(-3109.17125, 1769.030308, 0), Vector(-1859.17125, 1769.030308, 0)),
    Part.LineSegment(Vector(-1859.17125, 1769.030308, 0), Vector(-1859.17125, 3585.110873, 0)),
    Part.LineSegment(Vector(-1859.17125, 3585.110873, 0), Vector(-3109.17125, 3585.110873, 0)),
], False)
sketch13.addConstraint([
    Sketcher.Constraint("Coincident", 0, 2, 1, 1),
    Sketcher.Constraint("Coincident", 1, 2, 2, 1),
    Sketcher.Constraint("Coincident", 2, 2, 3, 1),
    Sketcher.Constraint("Coincident", 3, 2, 0, 1),
    Sketcher.Constraint("Vertical", 0),
    Sketcher.Constraint("Horizontal", 1),
    Sketcher.Constraint("Vertical", 2),
    Sketcher.Constraint("Horizontal", 3),
    Sketcher.Constraint("DistanceX", 1, 1, 1, 2, Q("1250.000001 mm")),
    Sketcher.Constraint("DistanceY", 0, 2, 0, 1, Q("1816.080566 mm")),
    Sketcher.Constraint("DistanceX", 0, 2, -1, 1, Q("3109.17125 mm")),
    Sketcher.Constraint("DistanceY", -1, 1, 0, 2, Q("1769.030308 mm")),
])
pocket7 = body.newObject("PartDesign::Pocket", "Pocket006")
pocket7.Profile = sketch13
pocket7.Length = 540

# Sketch on XY plane
sketch14 = body.newObject("Sketcher::SketchObject", "Sketch013")
sketch14.AttachmentSupport = (doc.getObject("XY_Plane"), [""])
sketch14.MapMode = "FlatFace"
sketch14.AttachmentOffset = App.Placement(Vector(0, 0, -2609.134912), App.Rotation())
sketch14.addGeometry([
    Part.LineSegment(Vector(800.811733, 6665.648602, 0), Vector(800.811733, 4855.648602, 0)),
    Part.LineSegment(Vector(800.811733, 4855.648602, 0), Vector(3300.811733, 4855.648602, 0)),
    Part.LineSegment(Vector(3300.811733, 4855.648602, 0), Vector(3300.811733, 6665.648602, 0)),
    Part.LineSegment(Vector(3300.811733, 6665.648602, 0), Vector(800.811733, 6665.648602, 0)),
], False)
sketch14.addConstraint([
    Sketcher.Constraint("Coincident", 0, 2, 1, 1),
    Sketcher.Constraint("Coincident", 1, 2, 2, 1),
    Sketcher.Constraint("Coincident", 2, 2, 3, 1),
    Sketcher.Constraint("Coincident", 3, 2, 0, 1),
    Sketcher.Constraint("Vertical", 0),
    Sketcher.Constraint("Horizontal", 1),
    Sketcher.Constraint("Vertical", 2),
    Sketcher.Constraint("Horizontal", 3),
    Sketcher.Constraint("DistanceX", 1, 1, 1, 2, Q("2500 mm")),
    Sketcher.Constraint("DistanceY", 0, 2, 0, 1, Q("1810 mm")),
    Sketcher.Constraint("DistanceY", -1, 1, 0, 2, Q("4855.648602 mm")),
    Sketcher.Constraint("DistanceX", -1, 1, 0, 2, Q("800.811733 mm")),
])
pocket8 = body.newObject("PartDesign::Pocket", "Pocket007")
pocket8.Profile = sketch14
pocket8.Length = 540

# Sketch on an angled plane
sketch15 = body.newObject("Sketcher::SketchObject", "Sketch014")
sketch15.Placement = App.Placement(Vector(1345.820242, 0, 777.009679), App.Rotation(Vector(0.500000175, 0, -0.866025303), Vector(0, 1, 0), Vector(0.866025303, 0, 0.500000175), "ZXY"))
sketch15.addGeometry([
    Part.LineSegment(Vector(3909.982984, 6665.648608, 0), Vector(3909.982984, 4855.648606, 0)),
    Part.LineSegment(Vector(3909.982984, 4855.648606, 0), Vector(5159.982984, 4855.648606, 0)),
    Part.LineSegment(Vector(5159.982984, 4855.648606, 0), Vector(5159.982984, 6665.648608, 0)),
    Part.LineSegment(Vector(5159.982984, 6665.648608, 0), Vector(3909.982984, 6665.648608, 0)),
], False)
sketch15.addConstraint([
    Sketcher.Constraint("Coincident", 0, 2, 1, 1),
    Sketcher.Constraint("Coincident", 1, 2, 2, 1),
    Sketcher.Constraint("Coincident", 2, 2, 3, 1),
    Sketcher.Constraint("Coincident", 3, 2, 0, 1),
    Sketcher.Constraint("Vertical", 0),
    Sketcher.Constraint("Horizontal", 1),
    Sketcher.Constraint("Vertical", 2),
    Sketcher.Constraint("Horizontal", 3),
    Sketcher.Constraint("DistanceX", 1, 1, 1, 2, Q("1250.000001 mm")),
    Sketcher.Constraint("DistanceY", 0, 2, 0, 1, Q("1810.000002 mm")),
    Sketcher.Constraint("DistanceX", -1, 1, 0, 2, Q("3909.982984 mm")),
    Sketcher.Constraint("DistanceY", -1, 1, 0, 2, Q("4855.648606 mm")),
])
pocket9 = body.newObject("PartDesign::Pocket", "Pocket008")
pocket9.Profile = sketch15
pocket9.Length = 540

# Sketch on an angled plane
sketch16 = body.newObject("Sketcher::SketchObject", "Sketch015")
sketch16.Placement = App.Placement(Vector(1730.397357, 0, -999.04538), App.Rotation(Vector(0.500000175, 0, 0.866025303), Vector(0, 1, 0), Vector(-0.866025303, 0, 0.500000175), "ZXY"))
sketch16.addGeometry([
    Part.LineSegment(Vector(-3109.17125, 6665.648608, 0), Vector(-3109.17125, 4855.648606, 0)),
    Part.LineSegment(Vector(-3109.17125, 4855.648606, 0), Vector(-1859.17125, 4855.648606, 0)),
    Part.LineSegment(Vector(-1859.17125, 4855.648606, 0), Vector(-1859.17125, 6665.648608, 0)),
    Part.LineSegment(Vector(-1859.17125, 6665.648608, 0), Vector(-3109.17125, 6665.648608, 0)),
], False)
sketch16.addConstraint([
    Sketcher.Constraint("Coincident", 0, 2, 1, 1),
    Sketcher.Constraint("Coincident", 1, 2, 2, 1),
    Sketcher.Constraint("Coincident", 2, 2, 3, 1),
    Sketcher.Constraint("Coincident", 3, 2, 0, 1),
    Sketcher.Constraint("Vertical", 0),
    Sketcher.Constraint("Horizontal", 1),
    Sketcher.Constraint("Vertical", 2),
    Sketcher.Constraint("Horizontal", 3),
    Sketcher.Constraint("DistanceX", 1, 1, 1, 2, Q("1250.000001 mm")),
    Sketcher.Constraint("DistanceY", 0, 2, 0, 1, Q("1810.000002 mm")),
    Sketcher.Constraint("DistanceX", 0, 2, -1, 1, Q("3109.17125 mm")),
    Sketcher.Constraint("DistanceY", -1, 1, 0, 2, Q("4855.648606 mm")),
])
pocket10 = body.newObject("PartDesign::Pocket", "Pocket009")
pocket10.Profile = sketch16
pocket10.Length = 540

# Sketch on XY plane
sketch17 = body.newObject("Sketcher::SketchObject", "Sketch016")
sketch17.AttachmentSupport = (doc.getObject("XY_Plane"), [""])
sketch17.MapMode = "FlatFace"
sketch17.AttachmentOffset = App.Placement(Vector(0, 0, -3691.666667), App.Rotation())
sketch17.addGeometry([
    Part.LineSegment(Vector(-3343.807024, 6673.61723, 0), Vector(-3343.807024, 4855.648602, 0)),
    Part.LineSegment(Vector(-3343.807024, 4855.648602, 0), Vector(-478.87629, 4855.648602, 0)),
    Part.LineSegment(Vector(-478.87629, 4855.648602, 0), Vector(-478.87629, 6673.61723, 0)),
    Part.LineSegment(Vector(-478.87629, 6673.61723, 0), Vector(-3343.807024, 6673.61723, 0)),
], False)
sketch17.addConstraint([
    Sketcher.Constraint("Coincident", 0, 2, 1, 1),
    Sketcher.Constraint("Coincident", 1, 2, 2, 1),
    Sketcher.Constraint("Coincident", 2, 2, 3, 1),
    Sketcher.Constraint("Coincident", 3, 2, 0, 1),
    Sketcher.Constraint("Vertical", 0),
    Sketcher.Constraint("Horizontal", 1),
    Sketcher.Constraint("Vertical", 2),
    Sketcher.Constraint("Horizontal", 3),
    Sketcher.Constraint("DistanceY", -1, 1, 0, 2, Q("4855.648602 mm")),
    Sketcher.Constraint("DistanceX", 1, 1, 1, 2, Q("2864.930734 mm")),
    Sketcher.Constraint("DistanceY", 0, 2, 0, 1, Q("1817.968628 mm")),
    Sketcher.Constraint("DistanceX", 1, 2, -1, 1, Q("478.87629 mm")),
])
pocket11 = body.newObject("PartDesign::Pocket", "Pocket010")
pocket11.Profile = sketch17
pocket11.Length = 540

doc.recompute()
